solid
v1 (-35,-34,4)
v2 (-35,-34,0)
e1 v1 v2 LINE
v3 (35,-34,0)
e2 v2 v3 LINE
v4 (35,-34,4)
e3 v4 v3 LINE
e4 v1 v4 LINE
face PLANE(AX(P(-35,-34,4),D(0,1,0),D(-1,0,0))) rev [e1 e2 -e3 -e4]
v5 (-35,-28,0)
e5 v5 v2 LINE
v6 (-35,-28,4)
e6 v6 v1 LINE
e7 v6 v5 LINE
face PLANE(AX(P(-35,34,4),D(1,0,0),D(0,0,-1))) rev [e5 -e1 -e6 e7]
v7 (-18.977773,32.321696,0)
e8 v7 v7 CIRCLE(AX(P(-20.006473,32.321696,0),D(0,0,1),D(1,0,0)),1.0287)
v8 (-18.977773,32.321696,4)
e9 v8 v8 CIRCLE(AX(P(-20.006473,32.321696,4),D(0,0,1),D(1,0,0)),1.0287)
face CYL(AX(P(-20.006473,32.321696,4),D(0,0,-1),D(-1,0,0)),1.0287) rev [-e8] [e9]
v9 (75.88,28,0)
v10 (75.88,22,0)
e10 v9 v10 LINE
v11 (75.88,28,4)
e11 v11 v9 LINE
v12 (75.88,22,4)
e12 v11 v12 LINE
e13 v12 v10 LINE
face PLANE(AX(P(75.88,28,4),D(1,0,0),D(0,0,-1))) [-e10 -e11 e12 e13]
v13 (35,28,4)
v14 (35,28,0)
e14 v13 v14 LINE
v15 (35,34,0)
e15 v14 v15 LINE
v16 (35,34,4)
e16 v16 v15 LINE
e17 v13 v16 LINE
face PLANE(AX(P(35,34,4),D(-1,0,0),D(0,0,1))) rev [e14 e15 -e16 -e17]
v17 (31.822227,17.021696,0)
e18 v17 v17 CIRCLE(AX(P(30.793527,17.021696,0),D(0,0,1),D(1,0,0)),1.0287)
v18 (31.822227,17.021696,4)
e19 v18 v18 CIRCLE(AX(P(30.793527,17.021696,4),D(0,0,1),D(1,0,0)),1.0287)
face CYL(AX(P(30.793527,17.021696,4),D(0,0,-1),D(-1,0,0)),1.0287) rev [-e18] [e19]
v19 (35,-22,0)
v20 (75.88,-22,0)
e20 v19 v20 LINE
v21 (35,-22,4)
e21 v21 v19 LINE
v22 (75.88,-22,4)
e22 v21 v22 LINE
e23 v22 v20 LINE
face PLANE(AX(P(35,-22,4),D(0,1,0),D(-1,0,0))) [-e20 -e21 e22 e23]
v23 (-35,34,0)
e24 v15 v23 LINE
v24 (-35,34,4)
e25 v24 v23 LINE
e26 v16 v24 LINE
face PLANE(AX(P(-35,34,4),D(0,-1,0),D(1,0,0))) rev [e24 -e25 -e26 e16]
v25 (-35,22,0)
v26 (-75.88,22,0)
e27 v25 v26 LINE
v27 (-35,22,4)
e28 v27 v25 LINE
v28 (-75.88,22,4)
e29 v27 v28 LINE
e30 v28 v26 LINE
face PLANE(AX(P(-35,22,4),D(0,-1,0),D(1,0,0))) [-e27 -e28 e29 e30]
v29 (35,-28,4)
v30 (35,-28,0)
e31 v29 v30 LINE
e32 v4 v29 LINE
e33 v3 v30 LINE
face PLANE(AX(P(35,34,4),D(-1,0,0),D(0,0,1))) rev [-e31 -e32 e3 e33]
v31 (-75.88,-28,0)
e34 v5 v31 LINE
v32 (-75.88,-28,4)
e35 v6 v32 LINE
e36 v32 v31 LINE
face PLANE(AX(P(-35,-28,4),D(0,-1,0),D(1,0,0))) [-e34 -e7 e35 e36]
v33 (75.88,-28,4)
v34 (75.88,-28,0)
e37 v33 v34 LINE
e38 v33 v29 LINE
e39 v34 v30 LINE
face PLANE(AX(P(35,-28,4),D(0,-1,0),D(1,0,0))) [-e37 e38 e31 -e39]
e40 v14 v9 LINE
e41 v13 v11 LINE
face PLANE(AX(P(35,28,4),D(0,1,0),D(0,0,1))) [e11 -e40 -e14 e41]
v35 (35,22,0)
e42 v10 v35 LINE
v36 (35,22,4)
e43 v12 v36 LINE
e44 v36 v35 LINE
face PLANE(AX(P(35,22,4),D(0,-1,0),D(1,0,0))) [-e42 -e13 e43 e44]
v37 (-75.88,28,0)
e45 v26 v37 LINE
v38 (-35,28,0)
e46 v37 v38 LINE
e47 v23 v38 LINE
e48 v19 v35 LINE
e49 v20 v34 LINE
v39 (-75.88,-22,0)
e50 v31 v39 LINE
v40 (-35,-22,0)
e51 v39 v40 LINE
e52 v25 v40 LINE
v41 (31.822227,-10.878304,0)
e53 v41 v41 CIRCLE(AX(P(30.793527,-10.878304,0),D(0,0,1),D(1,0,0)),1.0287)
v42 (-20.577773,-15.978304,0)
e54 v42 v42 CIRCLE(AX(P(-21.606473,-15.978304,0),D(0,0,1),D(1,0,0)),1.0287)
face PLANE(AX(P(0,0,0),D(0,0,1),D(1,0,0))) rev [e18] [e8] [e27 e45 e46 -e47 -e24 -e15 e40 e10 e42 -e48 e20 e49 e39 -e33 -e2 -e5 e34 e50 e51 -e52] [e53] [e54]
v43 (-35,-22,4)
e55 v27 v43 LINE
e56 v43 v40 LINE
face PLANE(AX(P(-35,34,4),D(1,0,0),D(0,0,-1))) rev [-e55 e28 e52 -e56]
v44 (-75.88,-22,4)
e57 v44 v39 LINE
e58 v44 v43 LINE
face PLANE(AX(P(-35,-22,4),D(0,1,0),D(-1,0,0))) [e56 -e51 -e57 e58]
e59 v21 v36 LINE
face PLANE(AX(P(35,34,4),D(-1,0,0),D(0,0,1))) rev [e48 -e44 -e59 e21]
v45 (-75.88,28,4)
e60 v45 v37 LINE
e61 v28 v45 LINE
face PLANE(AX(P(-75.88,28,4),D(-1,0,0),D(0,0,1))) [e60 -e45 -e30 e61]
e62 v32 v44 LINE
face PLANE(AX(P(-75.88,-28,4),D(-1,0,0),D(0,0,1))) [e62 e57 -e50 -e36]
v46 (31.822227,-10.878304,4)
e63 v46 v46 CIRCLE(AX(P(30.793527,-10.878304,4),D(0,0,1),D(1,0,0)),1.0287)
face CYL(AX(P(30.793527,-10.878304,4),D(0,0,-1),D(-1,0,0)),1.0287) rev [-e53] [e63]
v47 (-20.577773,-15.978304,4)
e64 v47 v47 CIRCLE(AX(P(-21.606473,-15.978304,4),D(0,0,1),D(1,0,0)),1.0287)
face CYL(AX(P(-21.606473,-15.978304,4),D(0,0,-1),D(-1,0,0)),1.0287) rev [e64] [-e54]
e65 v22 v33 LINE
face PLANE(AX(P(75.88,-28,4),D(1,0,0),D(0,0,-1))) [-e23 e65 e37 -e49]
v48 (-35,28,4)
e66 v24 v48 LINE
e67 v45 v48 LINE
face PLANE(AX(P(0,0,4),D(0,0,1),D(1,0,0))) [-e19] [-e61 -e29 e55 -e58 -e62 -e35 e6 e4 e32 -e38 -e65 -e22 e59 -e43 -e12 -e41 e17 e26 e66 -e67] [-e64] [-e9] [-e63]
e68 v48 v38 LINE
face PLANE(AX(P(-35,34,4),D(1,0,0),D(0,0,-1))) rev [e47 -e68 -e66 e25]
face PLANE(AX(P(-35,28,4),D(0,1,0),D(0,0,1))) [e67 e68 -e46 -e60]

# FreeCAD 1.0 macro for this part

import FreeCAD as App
import Part
import Sketcher

V = App.Vector
Q = App.Units.Quantity


def add_polygon(sketch, points):
    """Adds a closed chain of lines whose ends are joined by coincident constraints."""
    first, n = sketch.GeometryCount, len(points)
    for a, b in zip(points, points[1:] + points[:1]):
        sketch.addGeometry(Part.LineSegment(App.Vector(*a, 0), App.Vector(*b, 0)), False)
    for i in range(n):
        sketch.addConstraint(Sketcher.Constraint("Coincident", first + i, 2, first + (i + 1) % n, 1))

doc = App.newDocument("Part")
body = doc.addObject("PartDesign::Body", "Body")

# Sketch on XY plane
sketch1 = body.newObject("Sketcher::SketchObject", "Sketch")
sketch1.AttachmentSupport = (doc.getObject("XY_Plane"), [""])
sketch1.MapMode = "FlatFace"
add_polygon(sketch1, [(-35, 34), (-35, -34), (35, -34), (35, 34)])  # lines 0-3
sketch1.addGeometry(Part.Circle(V(-21.6, -16, 0), V(0, 0, 1), 1), False)  # 4
sketch1.addGeometry(Part.Circle(V(30.8, -10.9, 0), V(0, 0, 1), 1), False)  # 5
sketch1.addGeometry(Part.Circle(V(-20, 32.3, 0), V(0, 0, 1), 1), False)  # 6
sketch1.addGeometry(Part.Circle(V(30.8, 17, 0), V(0, 0, 1), 1), False)  # 7
sketch1.addConstraint(Sketcher.Constraint("Vertical", 0))
sketch1.addConstraint(Sketcher.Constraint("Horizontal", 1))
sketch1.addConstraint(Sketcher.Constraint("Vertical", 2))
sketch1.addConstraint(Sketcher.Constraint("Horizontal", 3))
sketch1.addConstraint(Sketcher.Constraint("Equal", 4, 5))
sketch1.addConstraint(Sketcher.Constraint("Equal", 5, 6))
sketch1.addConstraint(Sketcher.Constraint("Equal", 6, 7))
sketch1.addConstraint(Sketcher.Constraint("Symmetric", 0, 2, 2, 2, -1, 1))
sketch1.addConstraint(Sketcher.Constraint("Vertical", 5, 3, 7, 3))
sketch1.addConstraint(Sketcher.Constraint("DistanceX", 1, 1, 1, 2, Q("70 mm")))
sketch1.addConstraint(Sketcher.Constraint("DistanceY", 0, 2, 0, 1, Q("68 mm")))
sketch1.addConstraint(Sketcher.Constraint("DistanceY", 4, 3, 7, 3, Q("33 mm")))
sketch1.addConstraint(Sketcher.Constraint("Diameter", 4, Q("2.0574 mm")))
sketch1.addConstraint(Sketcher.Constraint("DistanceX", 4, 3, 5, 3, Q("52.4 mm")))
sketch1.addConstraint(Sketcher.Constraint("DistanceY", 4, 3, 5, 3, Q("5.1 mm")))
sketch1.addConstraint(Sketcher.Constraint("DistanceX", 4, 3, 6, 3, Q("1.6 mm")))
sketch1.addConstraint(Sketcher.Constraint("DistanceY", 4, 3, 6, 3, Q("48.3 mm")))
sketch1.addConstraint(Sketcher.Constraint("DistanceX", 4, 3, -1, 1, Q("21.606473 mm")))
sketch1.addConstraint(Sketcher.Constraint("DistanceY", 4, 3, -1, 1, Q("15.978304 mm")))
pad1 = body.newObject("PartDesign::Pad", "Pad")
pad1.Profile = sketch1
pad1.Length = 4

# Sketch on XY plane
sketch2 = body.newObject("Sketcher::SketchObject", "Sketch001")
sketch2.AttachmentSupport = (doc.getObject("XY_Plane"), [""])
sketch2.MapMode = "FlatFace"
add_polygon(sketch2, [(-35, 28), (-35, 22), (-76, 22), (-76, 28)])  # lines 0-3
add_polygon(sketch2, [(76, 28), (76, 22), (35, 22), (35, 28)])  # lines 4-7
add_polygon(sketch2, [(76, -22), (76, -28), (35, -28), (35, -22)])  # lines 8-11
add_polygon(sketch2, [(-35, -22), (-35, -28), (-76, -28), (-76, -22)])  # lines 12-15
sketch2.addConstraint(Sketcher.Constraint("Vertical", 0))
sketch2.addConstraint(Sketcher.Constraint("Horizontal", 1))
sketch2.addConstraint(Sketcher.Constraint("Vertical", 2))
sketch2.addConstraint(Sketcher.Constraint("Horizontal", 3))
sketch2.addConstraint(Sketcher.Constraint("Vertical", 4))
sketch2.addConstraint(Sketcher.Constraint("Horizontal", 5))
sketch2.addConstraint(Sketcher.Constraint("Vertical", 6))
sketch2.addConstraint(Sketcher.Constraint("Horizontal", 7))
sketch2.addConstraint(Sketcher.Constraint("Vertical", 8))
sketch2.addConstraint(Sketcher.Constraint("Horizontal", 9))
sketch2.addConstraint(Sketcher.Constraint("Vertical", 10))
sketch2.addConstraint(Sketcher.Constraint("Horizontal", 11))
sketch2.addConstraint(Sketcher.Constraint("Vertical", 12))
sketch2.addConstraint(Sketcher.Constraint("Horizontal", 13))
sketch2.addConstraint(Sketcher.Constraint("Vertical", 14))
sketch2.addConstraint(Sketcher.Constraint("Horizontal", 15))
sketch2.addConstraint(Sketcher.Constraint("Symmetric", 2, 2, 8, 2, -1, 1))
sketch2.addConstraint(Sketcher.Constraint("Symmetric", 0, 2, 10, 2, -1, 1))
sketch2.addConstraint(Sketcher.Constraint("Symmetric", 6, 2, 12, 2, -1, 1))
sketch2.addConstraint(Sketcher.Constraint("Symmetric", 4, 2, 14, 2, -1, 1))
sketch2.addConstraint(Sketcher.Constraint("Symmetric", 1, 2, 4, 2, -2))
sketch2.addConstraint(Sketcher.Constraint("Symmetric", 3, 2, 6, 2, -2))
sketch2.addConstraint(Sketcher.Constraint("DistanceY", 0, 2, 0, 1, Q("6 mm")))
sketch2.addConstraint(Sketcher.Constraint("DistanceX", 0, 2, -1, 1, Q("35 mm")))
sketch2.addConstraint(Sketcher.Constraint("DistanceY", -1, 1, 0, 2, Q("22 mm")))
sketch2.addConstraint(Sketcher.Constraint("DistanceX", 1, 2, 1, 1, Q("40.88 mm")))
pad2 = body.newObject("PartDesign::Pad", "Pad001")
pad2.Profile = sketch2
pad2.Length = 4

doc.recompute()
